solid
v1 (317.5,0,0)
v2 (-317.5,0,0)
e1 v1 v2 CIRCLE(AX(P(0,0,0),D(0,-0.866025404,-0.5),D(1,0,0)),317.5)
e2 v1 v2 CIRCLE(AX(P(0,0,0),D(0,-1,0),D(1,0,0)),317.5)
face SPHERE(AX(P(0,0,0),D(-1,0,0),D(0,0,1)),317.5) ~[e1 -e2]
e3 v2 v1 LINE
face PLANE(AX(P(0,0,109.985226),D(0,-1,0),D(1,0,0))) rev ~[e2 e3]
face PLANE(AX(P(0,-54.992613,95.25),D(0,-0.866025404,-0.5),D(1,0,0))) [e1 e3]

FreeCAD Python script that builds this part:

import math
import FreeCAD as App
import Part
import Sketcher

V = App.Vector
Q = App.Units.Quantity

doc = App.newDocument("Part")
body = doc.addObject("PartDesign::Body", "Body")

# Sketch on XZ plane
sketch1 = body.newObject("Sketcher::SketchObject", "Sketch")
sketch1.AttachmentSupport = (doc.getObject("XZ_Plane"), [""])
sketch1.MapMode = "FlatFace"
sketch1.addGeometry([
    Part.ArcOfCircle(Part.Circle(V(0, 0, 0), V(0, 0, 1), 318), math.radians(0), math.radians(180)),
    Part.LineSegment(V(-318, 0, 0), V(318, 0, 0)),
], False)
sketch1.addConstraint([
    Sketcher.Constraint("Coincident", 0, 1, 1, 2),
    Sketcher.Constraint("Coincident", 1, 1, 0, 2),
    Sketcher.Constraint("Horizontal", 1),
    Sketcher.Constraint("Coincident", 0, 3, -1, 1),
    Sketcher.Constraint("PointOnObject", 0, 1, -1),
    Sketcher.Constraint("Radius", 0, Q("12.5 in")),
])
revolution = body.newObject("PartDesign::Revolution", "Revolution")
revolution.Profile = sketch1
revolution.ReferenceAxis = (sketch1, ["H_Axis"])
revolution.Angle = 30

doc.recompute()
